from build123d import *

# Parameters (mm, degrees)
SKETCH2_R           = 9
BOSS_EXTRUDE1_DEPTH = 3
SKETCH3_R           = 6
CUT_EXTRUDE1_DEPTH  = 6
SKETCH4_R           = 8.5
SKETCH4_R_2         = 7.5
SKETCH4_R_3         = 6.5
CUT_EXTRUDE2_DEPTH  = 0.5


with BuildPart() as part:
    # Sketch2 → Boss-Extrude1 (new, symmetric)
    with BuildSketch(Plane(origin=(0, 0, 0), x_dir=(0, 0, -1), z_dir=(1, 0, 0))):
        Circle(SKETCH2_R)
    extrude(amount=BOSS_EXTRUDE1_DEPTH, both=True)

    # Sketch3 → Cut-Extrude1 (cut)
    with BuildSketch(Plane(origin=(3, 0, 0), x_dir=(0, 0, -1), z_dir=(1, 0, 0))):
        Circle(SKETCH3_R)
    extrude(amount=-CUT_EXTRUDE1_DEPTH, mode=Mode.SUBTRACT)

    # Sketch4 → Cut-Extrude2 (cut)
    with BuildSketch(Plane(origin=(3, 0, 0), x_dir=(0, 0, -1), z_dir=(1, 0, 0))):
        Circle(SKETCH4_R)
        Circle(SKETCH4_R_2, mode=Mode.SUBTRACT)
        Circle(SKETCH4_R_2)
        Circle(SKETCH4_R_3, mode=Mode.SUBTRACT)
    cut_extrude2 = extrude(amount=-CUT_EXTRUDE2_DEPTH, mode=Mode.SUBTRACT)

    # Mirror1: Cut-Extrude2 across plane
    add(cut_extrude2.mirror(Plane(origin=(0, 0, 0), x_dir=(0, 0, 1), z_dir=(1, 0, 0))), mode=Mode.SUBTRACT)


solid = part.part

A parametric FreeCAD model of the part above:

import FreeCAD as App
import Part
import Sketcher

V = App.Vector

doc = App.newDocument("Part")
params = doc.addObject("Spreadsheet::Sheet", "Params")
for row, (alias, value) in enumerate([
    ("sketch1_diameter", "18 mm"),
    ("pad1_length", "6 mm"),
    ("sketch2_diameter", "12 mm"),
    ("pocket1_length", "6 mm"),
    ("sketch3_diameter", "17 mm"),
    ("sketch3_diameter2", "13 mm"),
    ("pocket2_length", "0.5 mm"),
], start=1):
    params.set(f"A{row}", alias)
    params.set(f"B{row}", "=" + value)
    params.setAlias(f"B{row}", alias)

body = doc.addObject("PartDesign::Body", "Body")

# Sketch on YZ plane
sketch1 = body.newObject("Sketcher::SketchObject", "Sketch")
sketch1.AttachmentSupport = (doc.getObject("YZ_Plane"), [""])
sketch1.MapMode = "FlatFace"
sketch1.addGeometry(Part.Circle(V(0, 0, 0), V(0, 0, 1), 9), False)
sketch1.addConstraint(Sketcher.Constraint("Coincident", 0, 3, -1, 1))
sketch1.addConstraint(Sketcher.Constraint("Diameter", 0, 18.0))
sketch1.setExpression("Constraints[1]", "Params.sketch1_diameter")
pad1 = body.newObject("PartDesign::Pad", "Pad")
pad1.Profile = sketch1
pad1.setExpression("Length", "Params.pad1_length")
pad1.Midplane = True

# Sketch on YZ plane
sketch2 = body.newObject("Sketcher::SketchObject", "Sketch001")
sketch2.AttachmentSupport = (doc.getObject("YZ_Plane"), [""])
sketch2.MapMode = "FlatFace"
sketch2.AttachmentOffset = App.Placement(V(0, 0, 3), App.Rotation())
sketch2.addGeometry(Part.Circle(V(0, 0, 0), V(0, 0, 1), 6), False)
sketch2.addConstraint(Sketcher.Constraint("Coincident", 0, 3, -1, 1))
sketch2.addConstraint(Sketcher.Constraint("Diameter", 0, 12.0))
sketch2.setExpression("Constraints[1]", "Params.sketch2_diameter")
pocket1 = body.newObject("PartDesign::Pocket", "Pocket")
pocket1.Profile = sketch2
pocket1.setExpression("Length", "Params.pocket1_length")

# Sketch on YZ plane
sketch3 = body.newObject("Sketcher::SketchObject", "Sketch002")
sketch3.AttachmentSupport = (doc.getObject("YZ_Plane"), [""])
sketch3.MapMode = "FlatFace"
sketch3.AttachmentOffset = App.Placement(V(0, 0, 3), App.Rotation())
sketch3.addGeometry(Part.Circle(V(0, 0, 0), V(0, 0, 1), 8), False)
sketch3.addGeometry(Part.Circle(V(0, 0, 0), V(0, 0, 1), 6), False)
sketch3.addConstraint(Sketcher.Constraint("Coincident", 0, 3, -1, 1))
sketch3.addConstraint(Sketcher.Constraint("Coincident", 1, 3, -1, 1))
sketch3.addConstraint(Sketcher.Constraint("Diameter", 0, 17.0))
sketch3.addConstraint(Sketcher.Constraint("Diameter", 1, 13.0))
sketch3.setExpression("Constraints[2]", "Params.sketch3_diameter")
sketch3.setExpression("Constraints[3]", "Params.sketch3_diameter2")
pocket2 = body.newObject("PartDesign::Pocket", "Pocket001")
pocket2.Profile = sketch3
pocket2.setExpression("Length", "Params.pocket2_length")
doc.recompute()

mirrored = body.newObject("PartDesign::Mirrored", "Mirrored")
mirrored.Originals = [pocket2]
mirrored.MirrorPlane = (doc.getObject("YZ_Plane"), [""])
body.Tip = mirrored

doc.recompute()
